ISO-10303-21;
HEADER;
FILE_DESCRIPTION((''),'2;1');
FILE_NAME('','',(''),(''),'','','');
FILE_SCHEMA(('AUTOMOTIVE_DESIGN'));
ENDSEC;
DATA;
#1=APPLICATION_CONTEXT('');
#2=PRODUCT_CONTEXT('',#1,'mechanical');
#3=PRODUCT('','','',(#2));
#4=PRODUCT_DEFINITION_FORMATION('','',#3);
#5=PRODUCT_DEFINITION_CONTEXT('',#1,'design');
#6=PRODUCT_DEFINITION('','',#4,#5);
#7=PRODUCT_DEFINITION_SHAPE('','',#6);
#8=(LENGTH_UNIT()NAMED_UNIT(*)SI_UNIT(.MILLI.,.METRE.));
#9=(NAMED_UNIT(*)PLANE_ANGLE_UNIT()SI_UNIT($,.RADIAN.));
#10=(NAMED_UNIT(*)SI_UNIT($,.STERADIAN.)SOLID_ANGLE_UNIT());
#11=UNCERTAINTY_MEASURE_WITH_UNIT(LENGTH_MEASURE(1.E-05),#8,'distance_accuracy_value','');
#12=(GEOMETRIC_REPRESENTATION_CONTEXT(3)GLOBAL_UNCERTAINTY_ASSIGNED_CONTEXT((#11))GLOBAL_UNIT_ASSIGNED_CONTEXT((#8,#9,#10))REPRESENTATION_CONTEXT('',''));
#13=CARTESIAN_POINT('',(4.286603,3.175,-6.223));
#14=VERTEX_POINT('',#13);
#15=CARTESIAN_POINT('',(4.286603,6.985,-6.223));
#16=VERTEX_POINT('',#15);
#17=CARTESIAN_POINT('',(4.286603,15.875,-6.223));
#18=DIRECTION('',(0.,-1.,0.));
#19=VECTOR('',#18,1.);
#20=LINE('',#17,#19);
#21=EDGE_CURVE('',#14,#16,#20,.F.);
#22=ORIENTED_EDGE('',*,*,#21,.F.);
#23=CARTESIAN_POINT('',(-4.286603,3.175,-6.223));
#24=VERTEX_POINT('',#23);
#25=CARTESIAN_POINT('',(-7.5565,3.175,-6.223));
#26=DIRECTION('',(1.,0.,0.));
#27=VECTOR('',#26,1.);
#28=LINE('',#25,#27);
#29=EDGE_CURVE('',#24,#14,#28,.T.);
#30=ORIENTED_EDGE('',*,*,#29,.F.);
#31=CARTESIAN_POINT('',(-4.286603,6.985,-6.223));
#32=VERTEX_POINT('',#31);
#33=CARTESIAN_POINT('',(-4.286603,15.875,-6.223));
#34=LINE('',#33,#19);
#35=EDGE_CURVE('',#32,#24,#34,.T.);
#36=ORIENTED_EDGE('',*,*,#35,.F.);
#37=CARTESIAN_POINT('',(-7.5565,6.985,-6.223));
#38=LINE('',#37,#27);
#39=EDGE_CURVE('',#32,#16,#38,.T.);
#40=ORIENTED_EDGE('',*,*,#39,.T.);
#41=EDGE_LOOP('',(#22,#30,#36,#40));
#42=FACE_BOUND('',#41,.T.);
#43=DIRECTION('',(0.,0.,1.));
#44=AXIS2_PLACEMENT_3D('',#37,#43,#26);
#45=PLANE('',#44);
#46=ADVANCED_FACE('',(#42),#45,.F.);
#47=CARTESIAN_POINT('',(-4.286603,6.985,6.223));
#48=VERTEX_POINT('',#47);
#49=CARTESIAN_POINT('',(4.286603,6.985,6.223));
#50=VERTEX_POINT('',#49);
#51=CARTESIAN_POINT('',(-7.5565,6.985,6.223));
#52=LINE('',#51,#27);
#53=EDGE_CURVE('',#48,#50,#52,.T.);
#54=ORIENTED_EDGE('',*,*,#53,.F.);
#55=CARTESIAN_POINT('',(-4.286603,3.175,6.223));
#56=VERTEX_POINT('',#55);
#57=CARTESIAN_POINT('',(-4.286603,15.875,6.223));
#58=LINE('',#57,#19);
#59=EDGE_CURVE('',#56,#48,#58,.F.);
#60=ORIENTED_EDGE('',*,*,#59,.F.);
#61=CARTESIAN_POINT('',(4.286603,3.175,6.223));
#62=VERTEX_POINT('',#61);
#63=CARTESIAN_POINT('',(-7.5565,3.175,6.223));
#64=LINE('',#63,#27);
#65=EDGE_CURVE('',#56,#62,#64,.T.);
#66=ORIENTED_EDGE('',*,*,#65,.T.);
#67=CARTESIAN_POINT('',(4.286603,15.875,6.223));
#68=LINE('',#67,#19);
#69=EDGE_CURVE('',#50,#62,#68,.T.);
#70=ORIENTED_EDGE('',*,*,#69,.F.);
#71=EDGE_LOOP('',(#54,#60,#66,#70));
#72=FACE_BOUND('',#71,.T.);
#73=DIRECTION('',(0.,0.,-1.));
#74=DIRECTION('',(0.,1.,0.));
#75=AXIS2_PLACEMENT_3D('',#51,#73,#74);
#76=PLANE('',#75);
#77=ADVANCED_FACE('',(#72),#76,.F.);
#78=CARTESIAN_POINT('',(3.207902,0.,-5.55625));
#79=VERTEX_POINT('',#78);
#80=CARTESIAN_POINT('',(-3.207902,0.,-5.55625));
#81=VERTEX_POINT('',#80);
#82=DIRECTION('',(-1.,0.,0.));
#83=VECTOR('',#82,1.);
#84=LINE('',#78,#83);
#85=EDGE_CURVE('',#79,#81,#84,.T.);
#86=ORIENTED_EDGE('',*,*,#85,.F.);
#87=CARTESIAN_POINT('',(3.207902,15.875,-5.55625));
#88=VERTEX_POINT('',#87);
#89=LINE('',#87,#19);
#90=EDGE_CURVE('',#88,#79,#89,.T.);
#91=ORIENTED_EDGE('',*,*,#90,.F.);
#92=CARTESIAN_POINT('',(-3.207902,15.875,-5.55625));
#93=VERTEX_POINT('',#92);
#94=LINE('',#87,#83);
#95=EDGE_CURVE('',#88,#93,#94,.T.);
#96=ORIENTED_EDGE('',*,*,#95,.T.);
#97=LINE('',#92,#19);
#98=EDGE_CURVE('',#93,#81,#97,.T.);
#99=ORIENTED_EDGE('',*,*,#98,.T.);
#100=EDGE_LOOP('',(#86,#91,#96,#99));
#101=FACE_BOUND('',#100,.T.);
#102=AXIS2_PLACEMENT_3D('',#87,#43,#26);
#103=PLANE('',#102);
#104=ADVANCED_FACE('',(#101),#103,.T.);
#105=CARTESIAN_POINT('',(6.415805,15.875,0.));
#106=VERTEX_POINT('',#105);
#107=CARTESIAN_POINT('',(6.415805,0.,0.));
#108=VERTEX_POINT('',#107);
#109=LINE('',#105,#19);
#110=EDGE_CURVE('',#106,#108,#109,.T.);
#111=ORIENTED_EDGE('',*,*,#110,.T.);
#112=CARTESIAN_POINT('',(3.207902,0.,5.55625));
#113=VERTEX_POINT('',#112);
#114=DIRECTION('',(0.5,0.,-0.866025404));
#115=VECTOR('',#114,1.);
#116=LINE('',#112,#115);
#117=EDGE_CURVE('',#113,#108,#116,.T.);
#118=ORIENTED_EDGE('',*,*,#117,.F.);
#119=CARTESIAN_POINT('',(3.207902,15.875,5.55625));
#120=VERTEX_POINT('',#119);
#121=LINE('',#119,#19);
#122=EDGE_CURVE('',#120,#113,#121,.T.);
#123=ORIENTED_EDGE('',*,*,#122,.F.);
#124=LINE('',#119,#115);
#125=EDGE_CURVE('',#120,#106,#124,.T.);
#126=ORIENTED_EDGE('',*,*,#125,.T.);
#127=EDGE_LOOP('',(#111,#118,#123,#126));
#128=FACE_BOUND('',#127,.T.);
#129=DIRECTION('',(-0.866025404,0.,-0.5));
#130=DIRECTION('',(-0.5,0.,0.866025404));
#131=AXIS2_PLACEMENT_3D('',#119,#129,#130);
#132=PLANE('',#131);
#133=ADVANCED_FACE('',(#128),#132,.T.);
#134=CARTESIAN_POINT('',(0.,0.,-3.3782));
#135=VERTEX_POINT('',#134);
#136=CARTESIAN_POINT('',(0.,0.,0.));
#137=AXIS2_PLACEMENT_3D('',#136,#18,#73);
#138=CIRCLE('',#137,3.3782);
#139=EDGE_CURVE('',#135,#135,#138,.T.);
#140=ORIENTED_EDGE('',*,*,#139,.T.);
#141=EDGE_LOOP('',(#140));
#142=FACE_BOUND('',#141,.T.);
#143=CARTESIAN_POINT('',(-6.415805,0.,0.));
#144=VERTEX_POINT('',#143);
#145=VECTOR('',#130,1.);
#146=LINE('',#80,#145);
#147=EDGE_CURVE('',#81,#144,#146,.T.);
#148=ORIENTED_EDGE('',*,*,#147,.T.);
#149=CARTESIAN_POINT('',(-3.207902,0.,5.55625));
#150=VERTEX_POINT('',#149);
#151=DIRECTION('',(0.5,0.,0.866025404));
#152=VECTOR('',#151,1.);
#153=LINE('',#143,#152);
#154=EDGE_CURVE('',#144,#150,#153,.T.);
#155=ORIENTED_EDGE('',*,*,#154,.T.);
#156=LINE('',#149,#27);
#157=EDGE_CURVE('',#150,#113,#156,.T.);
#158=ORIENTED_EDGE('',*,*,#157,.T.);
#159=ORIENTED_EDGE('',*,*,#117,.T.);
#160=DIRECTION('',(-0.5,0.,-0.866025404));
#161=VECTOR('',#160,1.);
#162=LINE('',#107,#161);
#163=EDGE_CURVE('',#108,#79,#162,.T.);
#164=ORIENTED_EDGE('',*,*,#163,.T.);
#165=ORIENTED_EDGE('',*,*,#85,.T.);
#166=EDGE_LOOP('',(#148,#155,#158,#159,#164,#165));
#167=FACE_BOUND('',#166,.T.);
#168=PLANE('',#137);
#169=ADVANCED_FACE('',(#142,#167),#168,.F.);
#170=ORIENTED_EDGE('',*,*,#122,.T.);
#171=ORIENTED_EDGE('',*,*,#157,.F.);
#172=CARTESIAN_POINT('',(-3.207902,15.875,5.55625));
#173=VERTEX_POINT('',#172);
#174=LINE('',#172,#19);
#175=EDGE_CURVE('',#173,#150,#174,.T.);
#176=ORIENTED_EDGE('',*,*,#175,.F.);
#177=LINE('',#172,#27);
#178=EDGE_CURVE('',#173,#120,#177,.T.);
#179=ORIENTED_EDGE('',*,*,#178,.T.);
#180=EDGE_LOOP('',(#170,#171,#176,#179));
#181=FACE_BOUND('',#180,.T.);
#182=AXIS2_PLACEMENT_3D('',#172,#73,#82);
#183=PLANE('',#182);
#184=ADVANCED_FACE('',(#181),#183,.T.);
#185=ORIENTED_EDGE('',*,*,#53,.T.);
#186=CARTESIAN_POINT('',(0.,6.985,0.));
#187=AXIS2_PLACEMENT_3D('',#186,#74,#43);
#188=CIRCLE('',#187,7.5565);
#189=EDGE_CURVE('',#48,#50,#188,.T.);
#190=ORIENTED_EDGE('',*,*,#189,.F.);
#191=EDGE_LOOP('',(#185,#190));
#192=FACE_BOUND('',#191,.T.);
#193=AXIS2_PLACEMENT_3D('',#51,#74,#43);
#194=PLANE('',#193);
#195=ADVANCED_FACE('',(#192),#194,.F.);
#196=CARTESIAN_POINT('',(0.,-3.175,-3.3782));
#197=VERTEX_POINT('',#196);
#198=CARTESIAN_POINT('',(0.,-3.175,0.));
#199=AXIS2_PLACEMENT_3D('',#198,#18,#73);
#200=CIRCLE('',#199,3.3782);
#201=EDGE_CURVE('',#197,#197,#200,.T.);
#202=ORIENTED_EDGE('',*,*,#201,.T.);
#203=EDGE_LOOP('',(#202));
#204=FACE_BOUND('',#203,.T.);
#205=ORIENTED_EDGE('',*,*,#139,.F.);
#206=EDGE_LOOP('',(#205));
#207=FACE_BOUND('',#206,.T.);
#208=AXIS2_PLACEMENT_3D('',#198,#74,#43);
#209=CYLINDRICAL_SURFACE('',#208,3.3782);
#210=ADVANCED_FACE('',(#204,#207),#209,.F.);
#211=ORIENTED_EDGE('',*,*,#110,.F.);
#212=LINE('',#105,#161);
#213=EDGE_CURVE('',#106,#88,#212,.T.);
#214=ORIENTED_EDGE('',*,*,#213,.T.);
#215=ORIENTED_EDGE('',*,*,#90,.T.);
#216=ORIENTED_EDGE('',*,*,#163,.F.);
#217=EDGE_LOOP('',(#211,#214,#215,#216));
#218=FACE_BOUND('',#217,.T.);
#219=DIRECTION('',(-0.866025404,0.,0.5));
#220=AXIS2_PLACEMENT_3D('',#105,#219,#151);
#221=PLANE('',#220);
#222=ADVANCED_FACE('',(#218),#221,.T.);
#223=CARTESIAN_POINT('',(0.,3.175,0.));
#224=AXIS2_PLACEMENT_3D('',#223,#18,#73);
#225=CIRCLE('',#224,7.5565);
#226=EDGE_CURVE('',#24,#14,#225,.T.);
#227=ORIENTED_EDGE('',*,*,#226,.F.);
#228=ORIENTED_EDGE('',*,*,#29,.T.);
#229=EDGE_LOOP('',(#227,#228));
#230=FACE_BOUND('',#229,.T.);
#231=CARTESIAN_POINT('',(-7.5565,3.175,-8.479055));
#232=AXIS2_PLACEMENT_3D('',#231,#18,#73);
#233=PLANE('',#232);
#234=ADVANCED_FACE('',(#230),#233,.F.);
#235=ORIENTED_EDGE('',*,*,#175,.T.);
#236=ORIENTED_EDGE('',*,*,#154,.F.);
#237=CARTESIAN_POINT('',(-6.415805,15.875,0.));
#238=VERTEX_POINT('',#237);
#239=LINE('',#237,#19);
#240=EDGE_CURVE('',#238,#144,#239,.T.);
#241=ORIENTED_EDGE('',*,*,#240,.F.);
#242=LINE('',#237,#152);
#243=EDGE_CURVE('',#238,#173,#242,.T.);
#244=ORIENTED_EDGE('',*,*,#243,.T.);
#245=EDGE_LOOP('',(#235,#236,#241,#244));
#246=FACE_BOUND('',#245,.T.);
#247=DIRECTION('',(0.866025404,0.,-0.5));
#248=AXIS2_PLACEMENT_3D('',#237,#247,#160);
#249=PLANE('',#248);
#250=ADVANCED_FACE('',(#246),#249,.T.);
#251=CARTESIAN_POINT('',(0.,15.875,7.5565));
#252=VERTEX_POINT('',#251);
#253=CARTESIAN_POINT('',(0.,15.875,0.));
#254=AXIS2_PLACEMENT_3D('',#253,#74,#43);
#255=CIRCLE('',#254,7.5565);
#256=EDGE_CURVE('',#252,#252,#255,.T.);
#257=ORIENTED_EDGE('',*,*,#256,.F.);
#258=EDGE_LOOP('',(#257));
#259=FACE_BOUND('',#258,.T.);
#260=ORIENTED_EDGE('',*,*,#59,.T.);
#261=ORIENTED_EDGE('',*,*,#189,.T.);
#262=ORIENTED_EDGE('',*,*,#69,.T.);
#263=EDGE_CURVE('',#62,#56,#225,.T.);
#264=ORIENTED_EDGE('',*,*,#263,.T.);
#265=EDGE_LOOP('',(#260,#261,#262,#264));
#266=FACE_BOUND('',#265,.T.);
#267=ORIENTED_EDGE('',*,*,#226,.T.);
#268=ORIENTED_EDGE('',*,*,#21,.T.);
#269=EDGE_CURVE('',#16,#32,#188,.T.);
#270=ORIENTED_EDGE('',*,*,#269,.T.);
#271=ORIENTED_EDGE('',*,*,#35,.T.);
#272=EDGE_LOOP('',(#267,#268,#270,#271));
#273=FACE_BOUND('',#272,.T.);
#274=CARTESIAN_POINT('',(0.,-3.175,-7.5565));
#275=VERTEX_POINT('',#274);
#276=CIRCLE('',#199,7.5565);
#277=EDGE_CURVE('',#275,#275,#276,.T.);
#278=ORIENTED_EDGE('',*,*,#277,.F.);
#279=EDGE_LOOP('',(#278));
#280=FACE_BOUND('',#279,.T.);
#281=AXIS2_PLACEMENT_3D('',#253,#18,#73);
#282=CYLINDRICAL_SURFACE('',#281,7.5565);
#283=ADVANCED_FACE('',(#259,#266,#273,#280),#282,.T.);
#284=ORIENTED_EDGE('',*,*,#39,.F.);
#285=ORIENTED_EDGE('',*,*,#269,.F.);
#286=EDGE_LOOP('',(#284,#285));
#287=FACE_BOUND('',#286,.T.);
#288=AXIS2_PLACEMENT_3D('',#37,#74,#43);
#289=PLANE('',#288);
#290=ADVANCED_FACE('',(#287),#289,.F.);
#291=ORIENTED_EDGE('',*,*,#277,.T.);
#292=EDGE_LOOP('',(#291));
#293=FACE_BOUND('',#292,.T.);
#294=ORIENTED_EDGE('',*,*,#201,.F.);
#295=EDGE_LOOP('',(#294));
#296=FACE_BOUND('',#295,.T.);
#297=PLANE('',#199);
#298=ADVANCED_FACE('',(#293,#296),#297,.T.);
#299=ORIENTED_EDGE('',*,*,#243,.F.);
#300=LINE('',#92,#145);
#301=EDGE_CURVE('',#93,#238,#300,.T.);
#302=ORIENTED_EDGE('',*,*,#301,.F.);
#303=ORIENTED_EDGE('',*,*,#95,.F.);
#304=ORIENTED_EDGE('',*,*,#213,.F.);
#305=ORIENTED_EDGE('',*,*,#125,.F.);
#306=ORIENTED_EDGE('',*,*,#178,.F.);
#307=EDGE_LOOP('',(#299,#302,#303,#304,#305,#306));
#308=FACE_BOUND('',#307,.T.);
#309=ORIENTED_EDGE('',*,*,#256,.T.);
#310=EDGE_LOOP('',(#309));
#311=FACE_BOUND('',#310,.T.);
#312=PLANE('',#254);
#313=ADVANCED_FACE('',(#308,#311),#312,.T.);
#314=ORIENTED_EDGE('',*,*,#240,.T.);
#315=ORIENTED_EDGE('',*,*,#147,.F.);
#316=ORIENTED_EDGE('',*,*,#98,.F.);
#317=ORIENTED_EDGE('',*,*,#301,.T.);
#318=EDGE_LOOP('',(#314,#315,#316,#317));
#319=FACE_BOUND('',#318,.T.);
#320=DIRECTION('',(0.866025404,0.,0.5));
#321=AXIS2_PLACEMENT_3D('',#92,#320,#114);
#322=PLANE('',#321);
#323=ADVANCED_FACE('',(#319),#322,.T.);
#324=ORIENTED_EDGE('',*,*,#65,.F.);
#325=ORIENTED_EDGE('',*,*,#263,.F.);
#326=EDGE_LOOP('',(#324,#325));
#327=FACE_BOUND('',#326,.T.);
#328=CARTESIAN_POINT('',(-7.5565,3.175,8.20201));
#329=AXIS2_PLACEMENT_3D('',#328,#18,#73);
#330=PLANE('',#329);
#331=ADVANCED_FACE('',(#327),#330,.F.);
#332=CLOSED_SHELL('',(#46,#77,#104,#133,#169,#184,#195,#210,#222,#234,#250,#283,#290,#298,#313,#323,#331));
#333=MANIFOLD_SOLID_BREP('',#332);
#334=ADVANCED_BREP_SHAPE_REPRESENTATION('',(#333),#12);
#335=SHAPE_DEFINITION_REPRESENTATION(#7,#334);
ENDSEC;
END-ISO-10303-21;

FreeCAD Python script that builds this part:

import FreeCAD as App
import Part
import Sketcher
Q = App.Units.Quantity

doc = App.newDocument("Part")
params = doc.addObject("Spreadsheet::Sheet", "Params")
for row, (alias, value) in enumerate([
    ("sketch1_diameter", "0.595 in"),
    ("pad1_length", "0.625 in"),
    ("sketch2_diameter", "0.595 in"),
    ("sketch2_diameter2", "0.266 in"),
    ("pad2_length", "0.125 in"),
    ("sketch3_width", "0.15 in"),
], start=1):
    params.set(f"A{row}", alias)
    params.set(f"B{row}", "=" + value)
    params.setAlias(f"B{row}", alias)

body = doc.addObject("PartDesign::Body", "Body")

# Sketch on XZ plane
sketch1 = body.newObject("Sketcher::SketchObject", "Sketch")
sketch1.AttachmentSupport = (doc.getObject("XZ_Plane"), [""])
sketch1.MapMode = "FlatFace"
sketch1.addGeometry(Part.Circle(App.Vector(0, 0, 0), App.Vector(0, 0, 1), 8), False)
sketch1.addGeometry(Part.LineSegment(App.Vector(-6, 0, 0), App.Vector(-3, -6, 0)), False)
sketch1.addGeometry(Part.LineSegment(App.Vector(-3, -6, 0), App.Vector(3, -6, 0)), False)
sketch1.addGeometry(Part.LineSegment(App.Vector(3, -6, 0), App.Vector(6, 0, 0)), False)
sketch1.addGeometry(Part.LineSegment(App.Vector(6, 0, 0), App.Vector(3, 6, 0)), False)
sketch1.addGeometry(Part.LineSegment(App.Vector(3, 6, 0), App.Vector(-3, 6, 0)), False)
sketch1.addGeometry(Part.LineSegment(App.Vector(-3, 6, 0), App.Vector(-6, 0, 0)), False)
sketch1.addConstraint(Sketcher.Constraint("Coincident", 1, 2, 2, 1))
sketch1.addConstraint(Sketcher.Constraint("Coincident", 2, 2, 3, 1))
sketch1.addConstraint(Sketcher.Constraint("Coincident", 3, 2, 4, 1))
sketch1.addConstraint(Sketcher.Constraint("Coincident", 4, 2, 5, 1))
sketch1.addConstraint(Sketcher.Constraint("Coincident", 5, 2, 6, 1))
sketch1.addConstraint(Sketcher.Constraint("Coincident", 6, 2, 1, 1))
sketch1.addConstraint(Sketcher.Constraint("Horizontal", 2))
sketch1.addConstraint(Sketcher.Constraint("Horizontal", 5))
sketch1.addConstraint(Sketcher.Constraint("Coincident", 0, 3, -1, 1))
sketch1.addConstraint(Sketcher.Constraint("Symmetric", 1, 2, 4, 2, -1, 1))
sketch1.addConstraint(Sketcher.Constraint("Symmetric", 3, 2, 6, 2, -1, 1))
sketch1.addConstraint(Sketcher.Constraint("PointOnObject", 3, 2, -1))
sketch1.addConstraint(Sketcher.Constraint("Parallel", 3, 6))
sketch1.addConstraint(Sketcher.Constraint("Vertical", 2, 2, 4, 2))
sketch1.addConstraint(Sketcher.Constraint("Diameter", 0, Q("0.595 in")))
sketch1.addConstraint(Sketcher.Constraint("Angle", 1, Q("-60 deg")))
sketch1.addConstraint(Sketcher.Constraint("DistanceY", 1, 2, -1, 1, Q("0.21875 in")))
sketch1.addConstraint(Sketcher.Constraint("DistanceX", 2, 1, 2, 2, 6.415805))
sketch1.setExpression("Constraints[14]", "Params.sketch1_diameter")
pad1 = body.newObject("PartDesign::Pad", "Pad")
pad1.Profile = sketch1
pad1.setExpression("Length", "Params.pad1_length")
pad1.Reversed = True

# Sketch on XZ plane
sketch2 = body.newObject("Sketcher::SketchObject", "Sketch001")
sketch2.AttachmentSupport = (doc.getObject("XZ_Plane"), [""])
sketch2.MapMode = "FlatFace"
sketch2.AttachmentOffset = App.Placement(App.Vector(0, 0, 0.125 * 25.4), App.Rotation())
sketch2.addGeometry(Part.Circle(App.Vector(0, 0, 0), App.Vector(0, 0, 1), 7.6), False)
sketch2.addGeometry(Part.Circle(App.Vector(0, 0, 0), App.Vector(0, 0, 1), 3.4), False)
sketch2.addConstraint(Sketcher.Constraint("Coincident", 0, 3, -1, 1))
sketch2.addConstraint(Sketcher.Constraint("Coincident", 1, 3, -1, 1))
sketch2.addConstraint(Sketcher.Constraint("Diameter", 0, Q("0.595 in")))
sketch2.addConstraint(Sketcher.Constraint("Diameter", 1, Q("0.266 in")))
sketch2.setExpression("Constraints[2]", "Params.sketch2_diameter")
sketch2.setExpression("Constraints[3]", "Params.sketch2_diameter2")
pad2 = body.newObject("PartDesign::Pad", "Pad001")
pad2.Profile = sketch2
pad2.setExpression("Length", "Params.pad2_length")
pad2.Reversed = True

# Sketch on YZ plane
sketch3 = body.newObject("Sketcher::SketchObject", "Sketch002")
sketch3.AttachmentSupport = (doc.getObject("YZ_Plane"), [""])
sketch3.MapMode = "FlatFace"
sketch3.addGeometry(Part.LineSegment(App.Vector(7, 8.2, 0), App.Vector(3.2, 8.2, 0)), False)
sketch3.addGeometry(Part.LineSegment(App.Vector(3.2, 8.2, 0), App.Vector(3.2, 6.2, 0)), False)
sketch3.addGeometry(Part.LineSegment(App.Vector(3.2, 6.2, 0), App.Vector(7, 6.2, 0)), False)
sketch3.addGeometry(Part.LineSegment(App.Vector(7, 6.2, 0), App.Vector(7, 8.2, 0)), False)
sketch3.addGeometry(Part.LineSegment(App.Vector(7, -6.2, 0), App.Vector(3.2, -6.2, 0)), False)
sketch3.addGeometry(Part.LineSegment(App.Vector(3.2, -6.2, 0), App.Vector(3.2, -8.5, 0)), False)
sketch3.addGeometry(Part.LineSegment(App.Vector(3.2, -8.5, 0), App.Vector(7, -8.5, 0)), False)
sketch3.addGeometry(Part.LineSegment(App.Vector(7, -8.5, 0), App.Vector(7, -6.2, 0)), False)
sketch3.addConstraint(Sketcher.Constraint("Coincident", 0, 2, 1, 1))
sketch3.addConstraint(Sketcher.Constraint("Coincident", 1, 2, 2, 1))
sketch3.addConstraint(Sketcher.Constraint("Coincident", 2, 2, 3, 1))
sketch3.addConstraint(Sketcher.Constraint("Coincident", 3, 2, 0, 1))
sketch3.addConstraint(Sketcher.Constraint("Coincident", 4, 2, 5, 1))
sketch3.addConstraint(Sketcher.Constraint("Coincident", 5, 2, 6, 1))
sketch3.addConstraint(Sketcher.Constraint("Coincident", 6, 2, 7, 1))
sketch3.addConstraint(Sketcher.Constraint("Coincident", 7, 2, 4, 1))
sketch3.addConstraint(Sketcher.Constraint("Horizontal", 0))
sketch3.addConstraint(Sketcher.Constraint("Vertical", 1))
sketch3.addConstraint(Sketcher.Constraint("Horizontal", 2))
sketch3.addConstraint(Sketcher.Constraint("Vertical", 3))
sketch3.addConstraint(Sketcher.Constraint("Horizontal", 4))
sketch3.addConstraint(Sketcher.Constraint("Vertical", 5))
sketch3.addConstraint(Sketcher.Constraint("Horizontal", 6))
sketch3.addConstraint(Sketcher.Constraint("Vertical", 7))
sketch3.addConstraint(Sketcher.Constraint("Symmetric", 1, 2, 4, 2, -1))
sketch3.addConstraint(Sketcher.Constraint("Vertical", 3, 2, 6, 2))
sketch3.addConstraint(Sketcher.Constraint("DistanceX", 0, 2, 0, 1, Q("0.15 in")))
sketch3.addConstraint(Sketcher.Constraint("DistanceY", 4, 2, 1, 2, Q("0.49 in")))
sketch3.addConstraint(Sketcher.Constraint("DistanceX", -1, 1, 0, 2, Q("0.125 in")))
sketch3.addConstraint(Sketcher.Constraint("DistanceY", 1, 2, 1, 1, 1.97901))
sketch3.addConstraint(Sketcher.Constraint("DistanceY", 5, 2, 5, 1, 2.256055))
sketch3.setExpression("Constraints[18]", "Params.sketch3_width")
pocket1 = body.newObject("PartDesign::Pocket", "Pocket")
pocket1.Profile = sketch3
pocket1.Type = "ThroughAll"
pocket1.Midplane = True

doc.recompute()
